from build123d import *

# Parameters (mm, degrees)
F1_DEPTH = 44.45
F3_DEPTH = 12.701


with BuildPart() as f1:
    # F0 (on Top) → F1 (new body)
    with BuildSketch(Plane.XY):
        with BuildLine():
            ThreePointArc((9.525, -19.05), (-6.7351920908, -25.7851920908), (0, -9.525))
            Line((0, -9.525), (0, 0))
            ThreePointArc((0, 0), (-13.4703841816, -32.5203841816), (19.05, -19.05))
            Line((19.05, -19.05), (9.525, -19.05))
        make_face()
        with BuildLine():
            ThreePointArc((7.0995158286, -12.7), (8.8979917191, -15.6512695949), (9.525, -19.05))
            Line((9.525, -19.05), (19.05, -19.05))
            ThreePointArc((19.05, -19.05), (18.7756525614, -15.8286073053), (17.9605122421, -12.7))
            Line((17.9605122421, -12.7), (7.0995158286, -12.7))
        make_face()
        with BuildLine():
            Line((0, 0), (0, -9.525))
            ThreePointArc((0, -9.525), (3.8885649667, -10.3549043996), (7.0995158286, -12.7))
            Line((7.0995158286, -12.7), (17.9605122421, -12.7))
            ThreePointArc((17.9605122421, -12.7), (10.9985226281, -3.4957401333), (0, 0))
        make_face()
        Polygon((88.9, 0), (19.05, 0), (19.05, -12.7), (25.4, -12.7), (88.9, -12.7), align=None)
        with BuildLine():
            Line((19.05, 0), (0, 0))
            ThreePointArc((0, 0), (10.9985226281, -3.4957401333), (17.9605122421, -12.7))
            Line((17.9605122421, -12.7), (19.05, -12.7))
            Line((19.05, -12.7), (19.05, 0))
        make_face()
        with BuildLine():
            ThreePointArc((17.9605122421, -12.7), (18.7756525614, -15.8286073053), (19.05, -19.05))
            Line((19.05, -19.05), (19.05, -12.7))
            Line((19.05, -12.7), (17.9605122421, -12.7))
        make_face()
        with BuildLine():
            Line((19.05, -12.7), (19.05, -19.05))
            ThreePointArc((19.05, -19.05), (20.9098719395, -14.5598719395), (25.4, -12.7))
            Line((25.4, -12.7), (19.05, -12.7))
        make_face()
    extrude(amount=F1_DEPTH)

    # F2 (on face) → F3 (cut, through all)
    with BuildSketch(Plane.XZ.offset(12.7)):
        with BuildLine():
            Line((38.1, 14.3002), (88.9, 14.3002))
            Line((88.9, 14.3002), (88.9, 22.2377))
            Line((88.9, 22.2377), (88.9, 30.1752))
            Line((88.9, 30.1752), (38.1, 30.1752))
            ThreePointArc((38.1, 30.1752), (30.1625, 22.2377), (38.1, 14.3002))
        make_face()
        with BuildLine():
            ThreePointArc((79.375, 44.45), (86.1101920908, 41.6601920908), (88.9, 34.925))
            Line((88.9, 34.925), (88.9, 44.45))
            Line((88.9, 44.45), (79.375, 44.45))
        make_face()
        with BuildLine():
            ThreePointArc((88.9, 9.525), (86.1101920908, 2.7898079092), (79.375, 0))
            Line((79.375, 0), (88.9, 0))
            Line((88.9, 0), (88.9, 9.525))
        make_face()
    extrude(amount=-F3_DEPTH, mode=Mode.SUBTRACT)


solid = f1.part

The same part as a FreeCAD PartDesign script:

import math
import FreeCAD as App
import Part
import Sketcher

V = App.Vector
Q = App.Units.Quantity

doc = App.newDocument("Part")
body = doc.addObject("PartDesign::Body", "Body")

sketch1 = doc.addObject("Sketcher::SketchObject", "Sketch")
body.addObject(sketch1)
sketch1.AttachmentSupport = (doc.XY_Plane, [""])
sketch1.MapMode = "FlatFace"
sketch1.addGeometry([
    Part.ArcOfCircle(Part.Circle(V(0, -19, 0), V(0, 0, 1), 19), math.radians(90), math.radians(360)),
    Part.ArcOfCircle(Part.Circle(V(25, -19, 0), V(0, 0, 1), 6), math.radians(90), math.radians(180)),
    Part.LineSegment(V(25, -13, 0), V(89, -13, 0)),
    Part.LineSegment(V(89, -13, 0), V(89, 0, 0)),
    Part.LineSegment(V(89, 0, 0), V(0, 0, 0)),
    Part.ArcOfCircle(Part.Circle(V(0, -19, 0), V(0, 0, 1), 10), math.radians(90), math.radians(360)),
    Part.ArcOfCircle(Part.Circle(V(0, -19, 0), V(0, 0, 1), 10), math.radians(42), math.radians(90)),
    Part.ArcOfCircle(Part.Circle(V(0, -19, 0), V(0, 0, 1), 10), math.radians(0), math.radians(42)),
], False)
sketch1.addConstraint([
    Sketcher.Constraint("Tangent", 0, 2, 1, 2),
    Sketcher.Constraint("Tangent", 1, 1, 2, 1),
    Sketcher.Constraint("Coincident", 2, 2, 3, 1),
    Sketcher.Constraint("Coincident", 3, 2, 4, 1),
    Sketcher.Constraint("Tangent", 4, 2, 0, 1),
    Sketcher.Constraint("Tangent", 5, 1, 6, 2),
    Sketcher.Constraint("Tangent", 6, 1, 7, 2),
    Sketcher.Constraint("Tangent", 7, 1, 5, 2),
    Sketcher.Constraint("Horizontal", 2),
    Sketcher.Constraint("Vertical", 3),
    Sketcher.Constraint("Horizontal", 4),
    Sketcher.Constraint("Coincident", 4, 2, -1, 1),
    Sketcher.Constraint("Coincident", 5, 3, 0, 3),
    Sketcher.Constraint("PointOnObject", 5, 1, -2),
    Sketcher.Constraint("Horizontal", 0, 3, 1, 3),
    Sketcher.Constraint("Horizontal", 2, 2, 6, 1),
    Sketcher.Constraint("Horizontal", 0, 2, 7, 1),
    Sketcher.Constraint("Radius", 0, Q("0.75 in")),
    Sketcher.Constraint("Radius", 1, Q("0.25 in")),
    Sketcher.Constraint("DistanceX", 2, 1, 2, 2, Q("2.5 in")),
    Sketcher.Constraint("Radius", 5, Q("0.375 in")),
])
pad1 = doc.addObject("PartDesign::Pad", "Pad")
body.addObject(pad1)
pad1.Profile = sketch1
pad1.Length = Q("1.75 in")

sketch2 = doc.addObject("Sketcher::SketchObject", "Sketch001")
body.addObject(sketch2)
sketch2.AttachmentSupport = (doc.XZ_Plane, [""])
sketch2.MapMode = "FlatFace"
sketch2.AttachmentOffset = App.Placement(V(0, 0, 0.5 * 25.4), App.Rotation())
sketch2.addGeometry([
    Part.LineSegment(V(38, 14, 0), V(89, 14, 0)),
    Part.LineSegment(V(89, 14, 0), V(89, 30, 0)),
    Part.LineSegment(V(89, 30, 0), V(38, 30, 0)),
    Part.ArcOfCircle(Part.Circle(V(38, 22, 0), V(0, 0, 1), 8), math.radians(90), math.radians(270)),
    Part.ArcOfCircle(Part.Circle(V(79, 35, 0), V(0, 0, 1), 10), math.radians(0), math.radians(90)),
    Part.LineSegment(V(89, 35, 0), V(89, 44, 0)),
    Part.LineSegment(V(89, 44, 0), V(79, 44, 0)),
    Part.ArcOfCircle(Part.Circle(V(79, 10, 0), V(0, 0, 1), 10), math.radians(-90), math.radians(0)),
    Part.LineSegment(V(79, 0, 0), V(89, 0, 0)),
    Part.LineSegment(V(89, 0, 0), V(89, 10, 0)),
], False)
sketch2.addConstraint([
    Sketcher.Constraint("Coincident", 0, 2, 1, 1),
    Sketcher.Constraint("Coincident", 1, 2, 2, 1),
    Sketcher.Constraint("Tangent", 2, 2, 3, 1),
    Sketcher.Constraint("Tangent", 3, 2, 0, 1),
    Sketcher.Constraint("Tangent", 4, 1, 5, 1),
    Sketcher.Constraint("Coincident", 5, 2, 6, 1),
    Sketcher.Constraint("Tangent", 6, 2, 4, 2),
    Sketcher.Constraint("Tangent", 7, 1, 8, 1),
    Sketcher.Constraint("Coincident", 8, 2, 9, 1),
    Sketcher.Constraint("Tangent", 9, 2, 7, 2),
    Sketcher.Constraint("Horizontal", 0),
    Sketcher.Constraint("Vertical", 1),
    Sketcher.Constraint("Horizontal", 2),
    Sketcher.Constraint("Vertical", 5),
    Sketcher.Constraint("Horizontal", 6),
    Sketcher.Constraint("Horizontal", 8),
    Sketcher.Constraint("Vertical", 9),
    Sketcher.Constraint("Equal", 4, 7),
    Sketcher.Constraint("PointOnObject", 7, 1, -1),
    Sketcher.Constraint("Vertical", 4, 3, 7, 3),
    Sketcher.Constraint("Vertical", 1, 2, 4, 1),
    Sketcher.Constraint("DistanceX", 0, 1, 0, 2, Q("2 in")),
    Sketcher.Constraint("Radius", 3, Q("0.3125 in")),
    Sketcher.Constraint("Radius", 4, Q("0.375 in")),
    Sketcher.Constraint("DistanceY", 7, 3, 4, 3, Q("1 in")),
    Sketcher.Constraint("DistanceX", -1, 1, 3, 3, Q("1.5 in")),
    Sketcher.Constraint("DistanceY", -1, 1, 0, 2, Q("0.563 in")),
])
pocket1 = doc.addObject("PartDesign::Pocket", "Pocket")
body.addObject(pocket1)
pocket1.Profile = sketch2
pocket1.Type = "ThroughAll"

doc.recompute()
